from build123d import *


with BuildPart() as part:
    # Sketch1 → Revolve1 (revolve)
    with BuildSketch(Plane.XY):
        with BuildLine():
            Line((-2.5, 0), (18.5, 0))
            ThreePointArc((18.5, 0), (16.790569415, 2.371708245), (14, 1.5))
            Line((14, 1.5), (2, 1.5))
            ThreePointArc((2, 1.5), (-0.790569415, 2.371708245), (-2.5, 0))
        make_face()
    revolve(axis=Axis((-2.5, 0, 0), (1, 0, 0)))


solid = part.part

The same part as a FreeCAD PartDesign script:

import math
import FreeCAD as App
import Part
import Sketcher

doc = App.newDocument("Part")
params = doc.addObject("Spreadsheet::Sheet", "Params")
for row, (alias, value) in enumerate([
    ("sketch1_radius", "2.5 mm"),
    ("sketch1_width", "21 mm"),
    ("sketch1_width2", "12 mm"),
    ("revolution_angle", "360 deg"),
], start=1):
    params.set(f"A{row}", alias)
    params.set(f"B{row}", "=" + value)
    params.setAlias(f"B{row}", alias)

body = doc.addObject("PartDesign::Body", "Body")

sketch1 = body.newObject("Sketcher::SketchObject", "Sketch")
sketch1.AttachmentSupport = (doc.getObject("XY_Plane"), [""])
sketch1.MapMode = "FlatFace"
sketch1.addGeometry(Part.LineSegment(App.Vector(-2.5, 0, 0), App.Vector(18.5, 0, 0)), False)
sketch1.addGeometry(Part.ArcOfCircle(Part.Circle(App.Vector(16, 0, 0), App.Vector(0, 0, 1), 2.5), math.radians(0), math.radians(143.130102)), False)
sketch1.addGeometry(Part.LineSegment(App.Vector(14, 1.5, 0), App.Vector(2, 1.5, 0)), False)
sketch1.addGeometry(Part.ArcOfCircle(Part.Circle(App.Vector(0, 0, 0), App.Vector(0, 0, 1), 2.5), math.radians(36.869898), math.radians(180)), False)
sketch1.addConstraint(Sketcher.Constraint("Coincident", 0, 2, 1, 1))
sketch1.addConstraint(Sketcher.Constraint("Coincident", 1, 2, 2, 1))
sketch1.addConstraint(Sketcher.Constraint("Coincident", 2, 2, 3, 1))
sketch1.addConstraint(Sketcher.Constraint("Coincident", 3, 2, 0, 1))
sketch1.addConstraint(Sketcher.Constraint("Horizontal", 0))
sketch1.addConstraint(Sketcher.Constraint("Horizontal", 2))
sketch1.addConstraint(Sketcher.Constraint("Coincident", 3, 3, -1, 1))
sketch1.addConstraint(Sketcher.Constraint("Equal", 1, 3))
sketch1.addConstraint(Sketcher.Constraint("PointOnObject", 1, 3, -1))
sketch1.addConstraint(Sketcher.Constraint("PointOnObject", 0, 2, -1))
sketch1.addConstraint(Sketcher.Constraint("Radius", 1, 2.5))
sketch1.addConstraint(Sketcher.Constraint("DistanceX", 0, 1, 0, 2, 21.0))
sketch1.addConstraint(Sketcher.Constraint("DistanceX", 2, 2, 2, 1, 12.0))
sketch1.setExpression("Constraints[10]", "Params.sketch1_radius")
sketch1.setExpression("Constraints[11]", "Params.sketch1_width")
sketch1.setExpression("Constraints[12]", "Params.sketch1_width2")
revolution = body.newObject("PartDesign::Revolution", "Revolution")
revolution.Profile = sketch1
revolution.ReferenceAxis = (sketch1, ["H_Axis"])
revolution.setExpression("Angle", "Params.revolution_angle")

doc.recompute()
